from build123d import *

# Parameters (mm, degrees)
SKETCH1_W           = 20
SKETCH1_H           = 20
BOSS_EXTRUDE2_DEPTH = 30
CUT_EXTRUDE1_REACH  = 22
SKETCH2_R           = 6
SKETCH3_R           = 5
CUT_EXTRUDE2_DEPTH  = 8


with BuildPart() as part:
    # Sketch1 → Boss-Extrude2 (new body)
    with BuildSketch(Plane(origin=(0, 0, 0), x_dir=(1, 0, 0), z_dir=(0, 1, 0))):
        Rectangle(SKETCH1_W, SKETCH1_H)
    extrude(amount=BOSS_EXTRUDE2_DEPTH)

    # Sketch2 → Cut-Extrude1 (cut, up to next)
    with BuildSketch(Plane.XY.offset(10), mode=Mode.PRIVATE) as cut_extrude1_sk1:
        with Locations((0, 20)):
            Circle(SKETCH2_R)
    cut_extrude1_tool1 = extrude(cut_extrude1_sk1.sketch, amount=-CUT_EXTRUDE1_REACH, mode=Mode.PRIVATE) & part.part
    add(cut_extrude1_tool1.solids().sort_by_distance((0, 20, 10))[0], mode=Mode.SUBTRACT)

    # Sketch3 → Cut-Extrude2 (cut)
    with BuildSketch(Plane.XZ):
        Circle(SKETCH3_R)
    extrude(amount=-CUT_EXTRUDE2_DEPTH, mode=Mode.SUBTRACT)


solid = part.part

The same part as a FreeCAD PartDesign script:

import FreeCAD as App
import Part
import Sketcher

V = App.Vector
Q = App.Units.Quantity

doc = App.newDocument("Part")
body = doc.addObject("PartDesign::Body", "Body")

# Sketch on XZ plane
sketch1 = body.newObject("Sketcher::SketchObject", "Sketch")
sketch1.AttachmentSupport = (doc.getObject("XZ_Plane"), [""])
sketch1.MapMode = "FlatFace"
sketch1.addGeometry([
    Part.LineSegment(V(-10, -10, 0), V(-10, 10, 0)),
    Part.LineSegment(V(-10, 10, 0), V(10, 10, 0)),
    Part.LineSegment(V(10, 10, 0), V(10, -10, 0)),
    Part.LineSegment(V(10, -10, 0), V(-10, -10, 0)),
], False)
sketch1.addConstraint([
    Sketcher.Constraint("Coincident", 0, 2, 1, 1),
    Sketcher.Constraint("Coincident", 1, 2, 2, 1),
    Sketcher.Constraint("Coincident", 2, 2, 3, 1),
    Sketcher.Constraint("Coincident", 3, 2, 0, 1),
    Sketcher.Constraint("Vertical", 0),
    Sketcher.Constraint("Horizontal", 1),
    Sketcher.Constraint("Vertical", 2),
    Sketcher.Constraint("Horizontal", 3),
    Sketcher.Constraint("Symmetric", 0, 2, 2, 2, -1, 1),
    Sketcher.Constraint("Equal", 3, 0),
    Sketcher.Constraint("DistanceX", 1, 1, 1, 2, Q("20 mm")),
])
pad1 = body.newObject("PartDesign::Pad", "Pad")
pad1.Profile = sketch1
pad1.Length = 30
pad1.Reversed = True

# Sketch on XY plane
sketch2 = body.newObject("Sketcher::SketchObject", "Sketch001")
sketch2.AttachmentSupport = (doc.getObject("XY_Plane"), [""])
sketch2.MapMode = "FlatFace"
sketch2.AttachmentOffset = App.Placement(V(0, 0, 10), App.Rotation())
sketch2.addGeometry(Part.Circle(V(0, 20, 0), V(0, 0, 1), 6), False)
sketch2.addConstraint([
    Sketcher.Constraint("PointOnObject", 0, 3, -2),
    Sketcher.Constraint("Diameter", 0, Q("12 mm")),
    Sketcher.Constraint("DistanceY", -1, 1, 0, 3, Q("20 mm")),
])
pocket1 = body.newObject("PartDesign::Pocket", "Pocket")
pocket1.Profile = sketch2
pocket1.Type = "UpToFirst"

# Sketch on XZ plane
sketch3 = body.newObject("Sketcher::SketchObject", "Sketch002")
sketch3.AttachmentSupport = (doc.getObject("XZ_Plane"), [""])
sketch3.MapMode = "FlatFace"
sketch3.addGeometry(Part.Circle(V(0, 0, 0), V(0, 0, 1), 5), False)
sketch3.addConstraint([
    Sketcher.Constraint("Coincident", 0, 3, -1, 1),
    Sketcher.Constraint("Diameter", 0, Q("10 mm")),
])
pocket2 = body.newObject("PartDesign::Pocket", "Pocket001")
pocket2.Profile = sketch3
pocket2.Length = 8

doc.recompute()
